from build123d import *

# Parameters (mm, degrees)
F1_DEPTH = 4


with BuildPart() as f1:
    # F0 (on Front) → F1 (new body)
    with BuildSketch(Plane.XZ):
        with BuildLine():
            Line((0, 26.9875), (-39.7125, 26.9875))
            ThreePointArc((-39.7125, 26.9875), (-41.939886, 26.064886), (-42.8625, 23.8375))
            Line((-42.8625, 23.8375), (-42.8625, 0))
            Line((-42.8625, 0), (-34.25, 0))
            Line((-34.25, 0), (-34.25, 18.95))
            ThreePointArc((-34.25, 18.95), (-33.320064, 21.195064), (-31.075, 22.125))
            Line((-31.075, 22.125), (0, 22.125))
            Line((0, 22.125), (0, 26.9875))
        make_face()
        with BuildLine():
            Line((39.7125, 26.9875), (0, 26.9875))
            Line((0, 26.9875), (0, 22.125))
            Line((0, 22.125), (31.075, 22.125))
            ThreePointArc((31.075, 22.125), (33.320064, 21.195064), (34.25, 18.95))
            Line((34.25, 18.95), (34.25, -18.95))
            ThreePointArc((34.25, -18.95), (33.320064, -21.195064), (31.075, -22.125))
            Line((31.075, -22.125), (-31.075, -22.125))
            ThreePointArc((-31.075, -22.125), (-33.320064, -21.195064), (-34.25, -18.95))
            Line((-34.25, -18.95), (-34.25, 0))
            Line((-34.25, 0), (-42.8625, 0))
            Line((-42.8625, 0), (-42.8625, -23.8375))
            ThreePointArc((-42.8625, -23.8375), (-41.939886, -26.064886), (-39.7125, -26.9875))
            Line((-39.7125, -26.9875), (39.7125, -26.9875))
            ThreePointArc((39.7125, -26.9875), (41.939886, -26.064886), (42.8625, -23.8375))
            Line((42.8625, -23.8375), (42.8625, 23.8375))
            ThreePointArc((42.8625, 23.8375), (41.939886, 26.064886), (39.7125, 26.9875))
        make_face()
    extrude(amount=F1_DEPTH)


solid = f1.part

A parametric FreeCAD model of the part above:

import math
import FreeCAD as App
import Part
import Sketcher

V = App.Vector

doc = App.newDocument("Part")
body = doc.addObject("PartDesign::Body", "Body")

sketch1 = body.newObject("Sketcher::SketchObject", "Sketch")
sketch1.AttachmentSupport = (doc.getObject("XZ_Plane"), [""])
sketch1.MapMode = "FlatFace"
sketch1.addGeometry(Part.ArcOfCircle(Part.Circle(V(-39.7, 23.8, 0), V(0, 0, 1), 3.2), math.radians(90), math.radians(180)), False)
sketch1.addGeometry(Part.LineSegment(V(-42.9, 23.8, 0), V(-42.9, -23.8, 0)), False)
sketch1.addGeometry(Part.ArcOfCircle(Part.Circle(V(-39.7, -23.8, 0), V(0, 0, 1), 3.2), math.radians(-180), math.radians(-90)), False)
sketch1.addGeometry(Part.LineSegment(V(-39.7, -27, 0), V(39.7, -27, 0)), False)
sketch1.addGeometry(Part.ArcOfCircle(Part.Circle(V(39.7, -23.8, 0), V(0, 0, 1), 3.2), math.radians(-90), math.radians(0)), False)
sketch1.addGeometry(Part.LineSegment(V(42.9, -23.8, 0), V(42.9, 23.8, 0)), False)
sketch1.addGeometry(Part.ArcOfCircle(Part.Circle(V(39.7, 23.8, 0), V(0, 0, 1), 3.2), math.radians(0), math.radians(90)), False)
sketch1.addGeometry(Part.LineSegment(V(39.7, 27, 0), V(-39.7, 27, 0)), False)
sketch1.addGeometry(Part.ArcOfCircle(Part.Circle(V(-31.1, 18.9, 0), V(0, 0, 1), 3.2), math.radians(90), math.radians(180)), False)
sketch1.addGeometry(Part.LineSegment(V(-31.1, 22.1, 0), V(31.1, 22.1, 0)), False)
sketch1.addGeometry(Part.ArcOfCircle(Part.Circle(V(31.1, 18.9, 0), V(0, 0, 1), 3.2), math.radians(0), math.radians(90)), False)
sketch1.addGeometry(Part.LineSegment(V(34.2, 18.9, 0), V(34.2, -18.9, 0)), False)
sketch1.addGeometry(Part.ArcOfCircle(Part.Circle(V(31.1, -18.9, 0), V(0, 0, 1), 3.2), math.radians(-90), math.radians(0)), False)
sketch1.addGeometry(Part.LineSegment(V(31.1, -22.1, 0), V(-31.1, -22.1, 0)), False)
sketch1.addGeometry(Part.ArcOfCircle(Part.Circle(V(-31.1, -18.9, 0), V(0, 0, 1), 3.2), math.radians(-180), math.radians(-90)), False)
sketch1.addGeometry(Part.LineSegment(V(-34.2, -18.9, 0), V(-34.2, 18.9, 0)), False)
sketch1.addConstraint(Sketcher.Constraint("Tangent", 0, 2, 1, 1))
sketch1.addConstraint(Sketcher.Constraint("Tangent", 1, 2, 2, 1))
sketch1.addConstraint(Sketcher.Constraint("Tangent", 2, 2, 3, 1))
sketch1.addConstraint(Sketcher.Constraint("Tangent", 3, 2, 4, 1))
sketch1.addConstraint(Sketcher.Constraint("Tangent", 4, 2, 5, 1))
sketch1.addConstraint(Sketcher.Constraint("Tangent", 5, 2, 6, 1))
sketch1.addConstraint(Sketcher.Constraint("Tangent", 6, 2, 7, 1))
sketch1.addConstraint(Sketcher.Constraint("Tangent", 7, 2, 0, 1))
sketch1.addConstraint(Sketcher.Constraint("Tangent", 8, 1, 9, 1))
sketch1.addConstraint(Sketcher.Constraint("Tangent", 9, 2, 10, 2))
sketch1.addConstraint(Sketcher.Constraint("Tangent", 10, 1, 11, 1))
sketch1.addConstraint(Sketcher.Constraint("Tangent", 11, 2, 12, 2))
sketch1.addConstraint(Sketcher.Constraint("Tangent", 12, 1, 13, 1))
sketch1.addConstraint(Sketcher.Constraint("Tangent", 13, 2, 14, 2))
sketch1.addConstraint(Sketcher.Constraint("Tangent", 14, 1, 15, 1))
sketch1.addConstraint(Sketcher.Constraint("Tangent", 15, 2, 8, 2))
sketch1.addConstraint(Sketcher.Constraint("Vertical", 1))
sketch1.addConstraint(Sketcher.Constraint("Horizontal", 3))
sketch1.addConstraint(Sketcher.Constraint("Vertical", 5))
sketch1.addConstraint(Sketcher.Constraint("Horizontal", 7))
sketch1.addConstraint(Sketcher.Constraint("Horizontal", 9))
sketch1.addConstraint(Sketcher.Constraint("Vertical", 11))
sketch1.addConstraint(Sketcher.Constraint("Horizontal", 13))
sketch1.addConstraint(Sketcher.Constraint("Vertical", 15))
sketch1.addConstraint(Sketcher.Constraint("Equal", 0, 2))
sketch1.addConstraint(Sketcher.Constraint("Equal", 2, 4))
sketch1.addConstraint(Sketcher.Constraint("Equal", 4, 6))
sketch1.addConstraint(Sketcher.Constraint("Equal", 8, 10))
sketch1.addConstraint(Sketcher.Constraint("Equal", 10, 12))
sketch1.addConstraint(Sketcher.Constraint("Equal", 12, 14))
sketch1.addConstraint(Sketcher.Constraint("Symmetric", 0, 3, 4, 3, -1, 1))
sketch1.addConstraint(Sketcher.Constraint("Symmetric", 8, 3, 12, 3, -1, 1))
sketch1.addConstraint(Sketcher.Constraint("Radius", 0, 3.150001))
sketch1.addConstraint(Sketcher.Constraint("DistanceY", 11, 2, 11, 1, 37.9))
sketch1.addConstraint(Sketcher.Constraint("Radius", 8, 3.175))
sketch1.addConstraint(Sketcher.Constraint("DistanceX", 9, 1, 9, 2, 62.15))
sketch1.addConstraint(Sketcher.Constraint("DistanceX", 3, 1, 3, 2, 79.425))
sketch1.addConstraint(Sketcher.Constraint("DistanceY", 1, 2, 1, 1, 47.675))
pad1 = body.newObject("PartDesign::Pad", "Pad")
pad1.Profile = sketch1
pad1.Length = 4

doc.recompute()
